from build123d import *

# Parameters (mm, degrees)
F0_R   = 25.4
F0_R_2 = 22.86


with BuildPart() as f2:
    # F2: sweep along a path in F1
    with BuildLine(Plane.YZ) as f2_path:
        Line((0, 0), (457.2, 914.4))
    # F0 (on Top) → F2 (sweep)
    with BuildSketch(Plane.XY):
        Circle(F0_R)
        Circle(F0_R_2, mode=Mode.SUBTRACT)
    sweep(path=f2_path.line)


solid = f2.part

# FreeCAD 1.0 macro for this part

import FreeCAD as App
import Part
import Sketcher
Q = App.Units.Quantity

doc = App.newDocument("Part")
body = doc.addObject("PartDesign::Body", "Body")

# Sketch on XY plane
sketch1 = doc.addObject("Sketcher::SketchObject", "Sketch")
body.addObject(sketch1)
sketch1.AttachmentSupport = (doc.XY_Plane, [""])
sketch1.MapMode = "FlatFace"
sketch1.addGeometry(Part.Circle(App.Vector(0, 0, 0), App.Vector(0, 0, 1), 25), False)
sketch1.addGeometry(Part.Circle(App.Vector(0, 0, 0), App.Vector(0, 0, 1), 23), False)
sketch1.addConstraint(Sketcher.Constraint("Coincident", 0, 3, -1, 1))
sketch1.addConstraint(Sketcher.Constraint("Coincident", 1, 3, -1, 1))
sketch1.addConstraint(Sketcher.Constraint("Diameter", 0, Q("2 in")))
sketch1.addConstraint(Sketcher.Constraint("Diameter", 1, Q("1.8 in")))

# Sketch on an angled plane
sketch2 = doc.addObject("Sketcher::SketchObject", "Sketch001")
body.addObject(sketch2)
sketch2.Placement = App.Placement(App.Vector(0, 0, 0), App.Rotation(App.Vector(0, -0.447213595, -0.894427191), App.Vector(1, 0, 0), App.Vector(0, -0.894427191, 0.447213595), "ZXY"))
sketch2.addGeometry(Part.LineSegment(App.Vector(0, 0, 0), App.Vector(-1022, 0, 0)), False)
sketch2.addConstraint(Sketcher.Constraint("Horizontal", 0))
sketch2.addConstraint(Sketcher.Constraint("Coincident", 0, 1, -1, 1))
sketch2.addConstraint(Sketcher.Constraint("DistanceX", 0, 2, 0, 1, 1022.330279))
doc.recompute()

additivepipe = doc.addObject("PartDesign::AdditivePipe", "AdditivePipe")
body.addObject(additivepipe)
additivepipe.Profile = sketch1
additivepipe.Spine = (sketch2, ["Edge1"])

doc.recompute()
